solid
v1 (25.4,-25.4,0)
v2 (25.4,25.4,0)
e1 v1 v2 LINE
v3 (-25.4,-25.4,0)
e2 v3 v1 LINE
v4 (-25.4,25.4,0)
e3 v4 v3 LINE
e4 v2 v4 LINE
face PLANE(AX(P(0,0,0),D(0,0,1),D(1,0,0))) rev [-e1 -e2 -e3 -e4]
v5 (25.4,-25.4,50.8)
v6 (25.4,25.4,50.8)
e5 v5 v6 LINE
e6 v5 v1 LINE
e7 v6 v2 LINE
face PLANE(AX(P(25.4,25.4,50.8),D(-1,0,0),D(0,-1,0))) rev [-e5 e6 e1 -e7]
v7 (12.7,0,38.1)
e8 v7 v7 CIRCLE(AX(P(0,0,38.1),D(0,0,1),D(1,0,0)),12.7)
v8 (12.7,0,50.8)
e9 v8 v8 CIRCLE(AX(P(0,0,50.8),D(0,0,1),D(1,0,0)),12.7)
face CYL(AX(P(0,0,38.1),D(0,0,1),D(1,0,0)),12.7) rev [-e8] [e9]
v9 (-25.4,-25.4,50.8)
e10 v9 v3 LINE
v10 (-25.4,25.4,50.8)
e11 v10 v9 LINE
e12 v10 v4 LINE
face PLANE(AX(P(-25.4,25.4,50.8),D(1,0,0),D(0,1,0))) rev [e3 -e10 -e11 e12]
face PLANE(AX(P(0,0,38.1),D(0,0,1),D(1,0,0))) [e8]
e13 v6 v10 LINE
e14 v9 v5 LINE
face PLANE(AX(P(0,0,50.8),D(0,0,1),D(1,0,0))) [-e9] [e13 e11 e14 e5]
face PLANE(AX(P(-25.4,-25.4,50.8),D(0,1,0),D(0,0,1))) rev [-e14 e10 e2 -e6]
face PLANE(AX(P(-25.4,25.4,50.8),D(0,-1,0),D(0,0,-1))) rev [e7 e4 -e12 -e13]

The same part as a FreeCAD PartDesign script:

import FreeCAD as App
import Part
import Sketcher
Q = App.Units.Quantity


def add_polygon(sketch, points):
    """Adds a closed chain of lines whose ends are joined by coincident constraints."""
    first, n = sketch.GeometryCount, len(points)
    for a, b in zip(points, points[1:] + points[:1]):
        sketch.addGeometry(Part.LineSegment(App.Vector(*a, 0), App.Vector(*b, 0)), False)
    for i in range(n):
        sketch.addConstraint(Sketcher.Constraint("Coincident", first + i, 2, first + (i + 1) % n, 1))

doc = App.newDocument("Part")
body = doc.addObject("PartDesign::Body", "Body")

# Sketch on XY plane
sketch1 = body.newObject("Sketcher::SketchObject", "Sketch")
sketch1.AttachmentSupport = (doc.getObject("XY_Plane"), [""])
sketch1.MapMode = "FlatFace"
add_polygon(sketch1, [(-25.4, 25.4), (-25.4, -25.4), (25.4, -25.4), (25.4, 25.4)])  # lines 0-3
sketch1.addConstraint([
    Sketcher.Constraint("Vertical", 0),
    Sketcher.Constraint("Horizontal", 1),
    Sketcher.Constraint("Vertical", 2),
    Sketcher.Constraint("Horizontal", 3),
    Sketcher.Constraint("Symmetric", 0, 2, 2, 2, -1, 1),
    Sketcher.Constraint("Equal", 3, 0),
    Sketcher.Constraint("DistanceX", 1, 1, 1, 2, Q("2 in")),
])
pad1 = body.newObject("PartDesign::Pad", "Pad")
pad1.Profile = sketch1
pad1.Length = Q("2 in")

# Sketch on XY plane
sketch2 = body.newObject("Sketcher::SketchObject", "Sketch001")
sketch2.AttachmentSupport = (doc.getObject("XY_Plane"), [""])
sketch2.MapMode = "FlatFace"
sketch2.AttachmentOffset = App.Placement(App.Vector(0, 0, 2 * 25.4), App.Rotation())
sketch2.addGeometry(Part.Circle(App.Vector(0, 0, 0), App.Vector(0, 0, 1), 12.7), False)
sketch2.addConstraint([
    Sketcher.Constraint("Coincident", 0, 3, -1, 1),
    Sketcher.Constraint("Diameter", 0, Q("1 in")),
])
pocket1 = body.newObject("PartDesign::Pocket", "Pocket")
pocket1.Profile = sketch2
pocket1.Length = Q("0.5 in")

doc.recompute()
